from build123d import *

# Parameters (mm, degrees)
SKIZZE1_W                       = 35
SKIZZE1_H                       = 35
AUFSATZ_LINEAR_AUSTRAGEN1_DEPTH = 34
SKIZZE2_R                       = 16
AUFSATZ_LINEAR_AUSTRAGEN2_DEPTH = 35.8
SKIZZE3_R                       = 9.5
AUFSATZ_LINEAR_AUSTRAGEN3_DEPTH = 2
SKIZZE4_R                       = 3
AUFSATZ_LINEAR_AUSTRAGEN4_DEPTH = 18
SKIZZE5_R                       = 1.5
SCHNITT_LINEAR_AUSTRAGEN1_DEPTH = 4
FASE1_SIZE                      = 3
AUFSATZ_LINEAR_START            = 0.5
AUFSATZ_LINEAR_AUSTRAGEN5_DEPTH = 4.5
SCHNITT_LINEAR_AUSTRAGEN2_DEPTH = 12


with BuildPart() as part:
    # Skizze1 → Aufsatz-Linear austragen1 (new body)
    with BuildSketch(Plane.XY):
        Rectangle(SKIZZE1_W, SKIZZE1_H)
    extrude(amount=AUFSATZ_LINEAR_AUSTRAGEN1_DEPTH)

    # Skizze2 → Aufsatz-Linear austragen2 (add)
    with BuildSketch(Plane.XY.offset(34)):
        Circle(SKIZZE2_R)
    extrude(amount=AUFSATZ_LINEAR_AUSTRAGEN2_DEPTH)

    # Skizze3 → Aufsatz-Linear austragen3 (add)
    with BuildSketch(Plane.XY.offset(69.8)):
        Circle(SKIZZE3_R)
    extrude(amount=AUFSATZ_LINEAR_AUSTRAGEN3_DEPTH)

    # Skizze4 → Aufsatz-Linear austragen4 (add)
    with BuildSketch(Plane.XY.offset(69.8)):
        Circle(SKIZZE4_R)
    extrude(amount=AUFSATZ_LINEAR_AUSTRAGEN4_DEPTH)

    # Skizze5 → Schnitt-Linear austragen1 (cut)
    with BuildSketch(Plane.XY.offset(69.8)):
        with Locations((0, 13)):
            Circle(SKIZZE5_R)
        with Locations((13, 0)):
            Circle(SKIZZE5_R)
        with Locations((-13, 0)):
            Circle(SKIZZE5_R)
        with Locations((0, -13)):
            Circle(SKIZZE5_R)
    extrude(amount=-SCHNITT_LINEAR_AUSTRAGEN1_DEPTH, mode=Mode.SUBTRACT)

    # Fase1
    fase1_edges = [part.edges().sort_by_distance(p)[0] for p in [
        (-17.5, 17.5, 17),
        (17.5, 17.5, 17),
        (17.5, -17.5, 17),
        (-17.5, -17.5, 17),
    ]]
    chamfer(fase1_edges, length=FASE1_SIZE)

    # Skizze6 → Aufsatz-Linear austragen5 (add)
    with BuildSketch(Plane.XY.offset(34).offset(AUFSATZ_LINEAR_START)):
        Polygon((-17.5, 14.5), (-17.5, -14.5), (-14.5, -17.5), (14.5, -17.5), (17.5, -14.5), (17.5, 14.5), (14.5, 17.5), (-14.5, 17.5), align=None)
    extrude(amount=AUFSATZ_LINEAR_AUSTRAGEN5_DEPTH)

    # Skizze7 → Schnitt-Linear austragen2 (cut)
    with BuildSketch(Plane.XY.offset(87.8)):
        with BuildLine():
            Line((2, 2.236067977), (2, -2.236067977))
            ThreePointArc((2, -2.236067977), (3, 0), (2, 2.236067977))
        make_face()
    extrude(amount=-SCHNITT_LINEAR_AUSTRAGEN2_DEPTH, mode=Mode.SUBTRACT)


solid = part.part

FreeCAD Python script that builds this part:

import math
import FreeCAD as App
import Part
import Sketcher

V = App.Vector
Q = App.Units.Quantity


def edges_at(feature, points):
    """Names of the edges that pass closest to the given points."""
    edges = feature.Shape.Edges
    near = lambda p: min(range(len(edges)), key=lambda i: edges[i].distToShape(Part.Vertex(*p))[0])
    return sorted({f"Edge{near(p) + 1}" for p in points})

doc = App.newDocument("Part")
body = doc.addObject("PartDesign::Body", "Body")

sketch1 = body.newObject("Sketcher::SketchObject", "Sketch")
sketch1.AttachmentSupport = (doc.getObject("XY_Plane"), [""])
sketch1.MapMode = "FlatFace"
sketch1.addGeometry(Part.LineSegment(V(-18, 18, 0), V(-18, -18, 0)), False)
sketch1.addGeometry(Part.LineSegment(V(-18, -18, 0), V(18, -18, 0)), False)
sketch1.addGeometry(Part.LineSegment(V(18, -18, 0), V(18, 18, 0)), False)
sketch1.addGeometry(Part.LineSegment(V(18, 18, 0), V(-18, 18, 0)), False)
sketch1.addConstraint(Sketcher.Constraint("Coincident", 0, 2, 1, 1))
sketch1.addConstraint(Sketcher.Constraint("Coincident", 1, 2, 2, 1))
sketch1.addConstraint(Sketcher.Constraint("Coincident", 2, 2, 3, 1))
sketch1.addConstraint(Sketcher.Constraint("Coincident", 3, 2, 0, 1))
sketch1.addConstraint(Sketcher.Constraint("Vertical", 0))
sketch1.addConstraint(Sketcher.Constraint("Horizontal", 1))
sketch1.addConstraint(Sketcher.Constraint("Vertical", 2))
sketch1.addConstraint(Sketcher.Constraint("Horizontal", 3))
sketch1.addConstraint(Sketcher.Constraint("Symmetric", 0, 2, 2, 2, -1, 1))
sketch1.addConstraint(Sketcher.Constraint("Equal", 3, 0))
sketch1.addConstraint(Sketcher.Constraint("DistanceX", 1, 1, 1, 2, Q("35 mm")))
pad1 = body.newObject("PartDesign::Pad", "Pad")
pad1.Profile = sketch1
pad1.Length = 34

sketch2 = body.newObject("Sketcher::SketchObject", "Sketch001")
sketch2.AttachmentSupport = (doc.getObject("XY_Plane"), [""])
sketch2.MapMode = "FlatFace"
sketch2.AttachmentOffset = App.Placement(V(0, 0, 34), App.Rotation())
sketch2.addGeometry(Part.Circle(V(0, 0, 0), V(0, 0, 1), 16), False)
sketch2.addConstraint(Sketcher.Constraint("Coincident", 0, 3, -1, 1))
sketch2.addConstraint(Sketcher.Constraint("Diameter", 0, Q("32 mm")))
pad2 = body.newObject("PartDesign::Pad", "Pad001")
pad2.Profile = sketch2
pad2.Length = 35.8

sketch3 = body.newObject("Sketcher::SketchObject", "Sketch002")
sketch3.AttachmentSupport = (doc.getObject("XY_Plane"), [""])
sketch3.MapMode = "FlatFace"
sketch3.AttachmentOffset = App.Placement(V(0, 0, 69.8), App.Rotation())
sketch3.addGeometry(Part.Circle(V(0, 0, 0), V(0, 0, 1), 10), False)
sketch3.addConstraint(Sketcher.Constraint("Coincident", 0, 3, -1, 1))
sketch3.addConstraint(Sketcher.Constraint("Diameter", 0, Q("19 mm")))
pad3 = body.newObject("PartDesign::Pad", "Pad002")
pad3.Profile = sketch3
pad3.Length = 2

sketch4 = body.newObject("Sketcher::SketchObject", "Sketch003")
sketch4.AttachmentSupport = (doc.getObject("XY_Plane"), [""])
sketch4.MapMode = "FlatFace"
sketch4.AttachmentOffset = App.Placement(V(0, 0, 69.8), App.Rotation())
sketch4.addGeometry(Part.Circle(V(0, 0, 0), V(0, 0, 1), 3), False)
sketch4.addConstraint(Sketcher.Constraint("Coincident", 0, 3, -1, 1))
sketch4.addConstraint(Sketcher.Constraint("Diameter", 0, Q("6 mm")))
pad4 = body.newObject("PartDesign::Pad", "Pad003")
pad4.Profile = sketch4
pad4.Length = 18

sketch5 = body.newObject("Sketcher::SketchObject", "Sketch004")
sketch5.AttachmentSupport = (doc.getObject("XY_Plane"), [""])
sketch5.MapMode = "FlatFace"
sketch5.AttachmentOffset = App.Placement(V(0, 0, 69.8), App.Rotation())
sketch5.addGeometry(Part.Circle(V(0, 13, 0), V(0, 0, 1), 1.5), False)
sketch5.addGeometry(Part.Circle(V(13, 0, 0), V(0, 0, 1), 1.5), False)
sketch5.addGeometry(Part.Circle(V(-13, 0, 0), V(0, 0, 1), 1.5), False)
sketch5.addGeometry(Part.Circle(V(0, -13, 0), V(0, 0, 1), 1.5), False)
sketch5.addConstraint(Sketcher.Constraint("Equal", 0, 1))
sketch5.addConstraint(Sketcher.Constraint("Equal", 1, 2))
sketch5.addConstraint(Sketcher.Constraint("Equal", 2, 3))
sketch5.addConstraint(Sketcher.Constraint("Symmetric", 1, 3, 2, 3, -1, 1))
sketch5.addConstraint(Sketcher.Constraint("Symmetric", 0, 3, 3, 3, -1, 1))
sketch5.addConstraint(Sketcher.Constraint("PointOnObject", 0, 3, -2))
sketch5.addConstraint(Sketcher.Constraint("PointOnObject", 1, 3, -1))
sketch5.addConstraint(Sketcher.Constraint("Diameter", 0, Q("3 mm")))
sketch5.addConstraint(Sketcher.Constraint("DistanceY", -1, 1, 0, 3, Q("13 mm")))
sketch5.addConstraint(Sketcher.Constraint("DistanceX", -1, 1, 1, 3, Q("13 mm")))
pocket1 = body.newObject("PartDesign::Pocket", "Pocket")
pocket1.Profile = sketch5
pocket1.Length = 4
doc.recompute()

chamfer = body.newObject("PartDesign::Chamfer", "Chamfer")
chamfer.Base = (pocket1, edges_at(pocket1, [
    (-17.5, 17.5, 17),
    (17.5, 17.5, 17),
    (17.5, -17.5, 17),
    (-17.5, -17.5, 17),
]))
chamfer.Size = 3

sketch6 = body.newObject("Sketcher::SketchObject", "Sketch005")
sketch6.AttachmentSupport = (doc.getObject("XY_Plane"), [""])
sketch6.MapMode = "FlatFace"
sketch6.AttachmentOffset = App.Placement(V(0, 0, 34.5), App.Rotation())
sketch6.addGeometry(Part.LineSegment(V(-17.5, 14.5, 0), V(-17.5, -14.5, 0)), False)
sketch6.addGeometry(Part.LineSegment(V(-17.5, -14.5, 0), V(-14.5, -17.5, 0)), False)
sketch6.addGeometry(Part.LineSegment(V(-14.5, -17.5, 0), V(14.5, -17.5, 0)), False)
sketch6.addGeometry(Part.LineSegment(V(14.5, -17.5, 0), V(17.5, -14.5, 0)), False)
sketch6.addGeometry(Part.LineSegment(V(17.5, -14.5, 0), V(17.5, 14.5, 0)), False)
sketch6.addGeometry(Part.LineSegment(V(17.5, 14.5, 0), V(14.5, 17.5, 0)), False)
sketch6.addGeometry(Part.LineSegment(V(14.5, 17.5, 0), V(-14.5, 17.5, 0)), False)
sketch6.addGeometry(Part.LineSegment(V(-14.5, 17.5, 0), V(-17.5, 14.5, 0)), False)
sketch6.addConstraint(Sketcher.Constraint("Coincident", 0, 2, 1, 1))
sketch6.addConstraint(Sketcher.Constraint("Coincident", 1, 2, 2, 1))
sketch6.addConstraint(Sketcher.Constraint("Coincident", 2, 2, 3, 1))
sketch6.addConstraint(Sketcher.Constraint("Coincident", 3, 2, 4, 1))
sketch6.addConstraint(Sketcher.Constraint("Coincident", 4, 2, 5, 1))
sketch6.addConstraint(Sketcher.Constraint("Coincident", 5, 2, 6, 1))
sketch6.addConstraint(Sketcher.Constraint("Coincident", 6, 2, 7, 1))
sketch6.addConstraint(Sketcher.Constraint("Coincident", 7, 2, 0, 1))
sketch6.addConstraint(Sketcher.Constraint("Vertical", 0))
sketch6.addConstraint(Sketcher.Constraint("Horizontal", 2))
sketch6.addConstraint(Sketcher.Constraint("Vertical", 4))
sketch6.addConstraint(Sketcher.Constraint("Horizontal", 6))
sketch6.addConstraint(Sketcher.Constraint("Symmetric", 0, 2, 4, 2, -1, 1))
sketch6.addConstraint(Sketcher.Constraint("Symmetric", 1, 2, 5, 2, -1, 1))
sketch6.addConstraint(Sketcher.Constraint("Perpendicular", 1, 3))
sketch6.addConstraint(Sketcher.Constraint("Perpendicular", 5, 7))
sketch6.addConstraint(Sketcher.Constraint("Horizontal", 0, 2, 3, 2))
sketch6.addConstraint(Sketcher.Constraint("Horizontal", 4, 2, 7, 2))
sketch6.addConstraint(Sketcher.Constraint("Vertical", 2, 2, 5, 2))
sketch6.addConstraint(Sketcher.Constraint("Equal", 6, 0))
sketch6.addConstraint(Sketcher.Constraint("DistanceX", 2, 1, 2, 2, Q("29 mm")))
sketch6.addConstraint(Sketcher.Constraint("DistanceX", 0, 2, 1, 2, Q("3 mm")))
pad5 = body.newObject("PartDesign::Pad", "Pad004")
pad5.Profile = sketch6
pad5.Length = 4.5

sketch7 = body.newObject("Sketcher::SketchObject", "Sketch006")
sketch7.AttachmentSupport = (doc.getObject("XY_Plane"), [""])
sketch7.MapMode = "FlatFace"
sketch7.AttachmentOffset = App.Placement(V(0, 0, 87.8), App.Rotation())
sketch7.addGeometry(Part.LineSegment(V(2, 2.2, 0), V(2, -2.2, 0)), False)
sketch7.addGeometry(Part.ArcOfCircle(Part.Circle(V(0, 0, 0), V(0, 0, 1), 3), math.radians(-48), math.radians(48)), False)
sketch7.addConstraint(Sketcher.Constraint("Coincident", 0, 1, 1, 2))
sketch7.addConstraint(Sketcher.Constraint("Coincident", 1, 1, 0, 2))
sketch7.addConstraint(Sketcher.Constraint("Vertical", 0))
sketch7.addConstraint(Sketcher.Constraint("Coincident", 1, 3, -1, 1))
sketch7.addConstraint(Sketcher.Constraint("Radius", 1, Q("3 mm")))
sketch7.addConstraint(Sketcher.Constraint("DistanceX", -1, 1, 0, 1, Q("2 mm")))
pocket2 = body.newObject("PartDesign::Pocket", "Pocket001")
pocket2.Profile = sketch7
pocket2.Length = 12

doc.recompute()
